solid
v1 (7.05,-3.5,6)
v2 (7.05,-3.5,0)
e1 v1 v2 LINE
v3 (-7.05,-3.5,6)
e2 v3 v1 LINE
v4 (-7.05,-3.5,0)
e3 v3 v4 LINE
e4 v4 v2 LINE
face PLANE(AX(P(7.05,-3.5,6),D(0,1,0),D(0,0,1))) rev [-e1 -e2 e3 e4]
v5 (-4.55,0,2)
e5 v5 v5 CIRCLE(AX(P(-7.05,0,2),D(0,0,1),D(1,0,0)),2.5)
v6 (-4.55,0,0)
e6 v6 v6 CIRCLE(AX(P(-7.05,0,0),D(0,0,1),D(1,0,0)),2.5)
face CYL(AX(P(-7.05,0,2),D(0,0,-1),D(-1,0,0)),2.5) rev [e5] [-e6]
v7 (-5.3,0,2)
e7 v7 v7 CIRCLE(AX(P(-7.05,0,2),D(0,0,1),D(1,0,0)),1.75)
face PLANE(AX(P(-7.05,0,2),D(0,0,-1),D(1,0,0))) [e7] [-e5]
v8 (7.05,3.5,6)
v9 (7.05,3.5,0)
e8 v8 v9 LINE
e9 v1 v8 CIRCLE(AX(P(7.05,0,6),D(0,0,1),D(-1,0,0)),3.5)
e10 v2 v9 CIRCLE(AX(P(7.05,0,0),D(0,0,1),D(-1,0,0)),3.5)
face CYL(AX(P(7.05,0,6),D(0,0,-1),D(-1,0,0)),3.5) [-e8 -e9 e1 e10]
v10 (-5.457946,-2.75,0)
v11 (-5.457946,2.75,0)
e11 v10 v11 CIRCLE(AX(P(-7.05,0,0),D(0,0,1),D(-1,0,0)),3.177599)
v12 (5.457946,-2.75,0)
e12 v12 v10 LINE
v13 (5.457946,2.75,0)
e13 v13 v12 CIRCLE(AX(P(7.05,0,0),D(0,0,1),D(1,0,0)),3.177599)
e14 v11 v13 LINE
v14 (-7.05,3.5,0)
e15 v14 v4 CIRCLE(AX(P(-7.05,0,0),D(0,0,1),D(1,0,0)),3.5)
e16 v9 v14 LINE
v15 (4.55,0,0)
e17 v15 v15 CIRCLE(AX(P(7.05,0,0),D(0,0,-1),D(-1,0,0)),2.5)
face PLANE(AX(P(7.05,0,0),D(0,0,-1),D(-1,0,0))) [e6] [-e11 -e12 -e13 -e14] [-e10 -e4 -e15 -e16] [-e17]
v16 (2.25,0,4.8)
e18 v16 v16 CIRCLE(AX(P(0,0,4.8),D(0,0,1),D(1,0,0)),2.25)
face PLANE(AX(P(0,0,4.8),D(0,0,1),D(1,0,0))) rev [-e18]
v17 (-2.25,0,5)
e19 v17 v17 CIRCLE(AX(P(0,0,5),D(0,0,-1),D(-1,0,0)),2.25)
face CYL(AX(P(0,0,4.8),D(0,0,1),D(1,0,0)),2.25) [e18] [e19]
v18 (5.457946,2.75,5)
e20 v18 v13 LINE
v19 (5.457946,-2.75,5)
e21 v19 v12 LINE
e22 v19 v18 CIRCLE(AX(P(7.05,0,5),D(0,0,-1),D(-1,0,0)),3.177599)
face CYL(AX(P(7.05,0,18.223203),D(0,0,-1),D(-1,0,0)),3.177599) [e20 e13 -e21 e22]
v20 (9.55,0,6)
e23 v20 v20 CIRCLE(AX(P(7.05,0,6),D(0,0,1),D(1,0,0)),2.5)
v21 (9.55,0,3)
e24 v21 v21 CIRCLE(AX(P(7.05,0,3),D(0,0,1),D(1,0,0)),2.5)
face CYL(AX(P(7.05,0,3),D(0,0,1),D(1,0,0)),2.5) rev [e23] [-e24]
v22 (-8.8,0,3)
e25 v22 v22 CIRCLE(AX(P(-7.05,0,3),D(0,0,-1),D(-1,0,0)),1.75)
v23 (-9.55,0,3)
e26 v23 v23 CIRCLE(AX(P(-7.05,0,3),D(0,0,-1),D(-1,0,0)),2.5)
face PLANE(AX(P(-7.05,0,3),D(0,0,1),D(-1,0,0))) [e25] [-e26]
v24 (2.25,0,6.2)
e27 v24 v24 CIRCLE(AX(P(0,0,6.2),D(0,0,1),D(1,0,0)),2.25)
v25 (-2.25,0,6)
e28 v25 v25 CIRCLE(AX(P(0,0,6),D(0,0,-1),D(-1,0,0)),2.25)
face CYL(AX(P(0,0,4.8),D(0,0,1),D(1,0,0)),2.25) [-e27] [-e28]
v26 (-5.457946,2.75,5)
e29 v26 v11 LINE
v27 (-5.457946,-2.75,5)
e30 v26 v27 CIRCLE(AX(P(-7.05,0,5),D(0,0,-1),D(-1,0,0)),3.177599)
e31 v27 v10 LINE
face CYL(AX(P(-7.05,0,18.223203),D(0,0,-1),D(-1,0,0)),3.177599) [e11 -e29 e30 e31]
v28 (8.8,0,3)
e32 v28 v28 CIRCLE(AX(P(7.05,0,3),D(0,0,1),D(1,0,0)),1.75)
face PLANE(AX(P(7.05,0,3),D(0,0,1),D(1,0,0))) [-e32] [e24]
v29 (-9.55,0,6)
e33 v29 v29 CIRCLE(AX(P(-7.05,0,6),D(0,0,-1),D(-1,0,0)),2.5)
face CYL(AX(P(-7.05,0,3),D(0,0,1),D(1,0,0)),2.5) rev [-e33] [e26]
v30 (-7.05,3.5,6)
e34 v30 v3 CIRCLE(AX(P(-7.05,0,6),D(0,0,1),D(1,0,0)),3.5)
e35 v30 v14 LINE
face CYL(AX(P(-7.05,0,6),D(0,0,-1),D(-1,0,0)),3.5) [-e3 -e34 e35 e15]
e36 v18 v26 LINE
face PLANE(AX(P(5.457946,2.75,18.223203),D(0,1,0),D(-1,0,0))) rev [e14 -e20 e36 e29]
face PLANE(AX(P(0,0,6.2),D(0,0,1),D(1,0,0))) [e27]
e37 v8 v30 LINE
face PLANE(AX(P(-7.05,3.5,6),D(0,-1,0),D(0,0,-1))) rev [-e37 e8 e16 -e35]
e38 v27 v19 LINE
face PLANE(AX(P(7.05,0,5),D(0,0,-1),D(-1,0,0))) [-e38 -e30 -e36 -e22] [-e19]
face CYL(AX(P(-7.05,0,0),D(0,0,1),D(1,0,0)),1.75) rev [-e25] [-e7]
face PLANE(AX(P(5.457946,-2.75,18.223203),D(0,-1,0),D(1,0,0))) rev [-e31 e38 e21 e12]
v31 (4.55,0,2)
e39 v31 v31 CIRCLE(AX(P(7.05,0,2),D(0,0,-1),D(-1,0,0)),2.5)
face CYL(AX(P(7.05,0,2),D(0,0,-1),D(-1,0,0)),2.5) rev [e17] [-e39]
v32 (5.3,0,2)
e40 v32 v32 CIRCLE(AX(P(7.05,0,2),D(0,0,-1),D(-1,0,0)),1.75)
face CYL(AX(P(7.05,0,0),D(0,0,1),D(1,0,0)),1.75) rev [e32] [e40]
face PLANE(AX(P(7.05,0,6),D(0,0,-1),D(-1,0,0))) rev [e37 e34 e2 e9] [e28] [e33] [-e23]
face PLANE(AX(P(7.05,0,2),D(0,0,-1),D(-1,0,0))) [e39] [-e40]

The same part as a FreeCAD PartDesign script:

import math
import FreeCAD as App
import Part
import Sketcher
from FreeCAD import Vector
Q = App.Units.Quantity

doc = App.newDocument("Part")
body = doc.addObject("PartDesign::Body", "Body")

sketch1 = doc.addObject("Sketcher::SketchObject", "Sketch")
body.addObject(sketch1)
sketch1.AttachmentSupport = (doc.XY_Plane, [""])
sketch1.MapMode = "FlatFace"
sketch1.addGeometry([
    Part.LineSegment(Vector(-7, -3.5, 0), Vector(7, -3.5, 0)),
    Part.ArcOfCircle(Part.Circle(Vector(7, 0, 0), Vector(0, 0, 1), 3.5), math.radians(-90), math.radians(90)),
    Part.LineSegment(Vector(7, 3.5, 0), Vector(-7, 3.5, 0)),
    Part.ArcOfCircle(Part.Circle(Vector(-7, 0, 0), Vector(0, 0, 1), 3.5), math.radians(90), math.radians(270)),
], False)
sketch1.addConstraint([
    Sketcher.Constraint("Tangent", 0, 2, 1, 1),
    Sketcher.Constraint("Tangent", 1, 2, 2, 1),
    Sketcher.Constraint("Tangent", 2, 2, 3, 1),
    Sketcher.Constraint("Tangent", 3, 2, 0, 1),
    Sketcher.Constraint("Horizontal", 0),
    Sketcher.Constraint("Horizontal", 2),
    Sketcher.Constraint("Symmetric", 1, 3, 3, 3, -1, 1),
    Sketcher.Constraint("Radius", 1, Q("3.5 mm")),
    Sketcher.Constraint("DistanceX", 0, 1, 0, 2, Q("14.1 mm")),
])
pad1 = doc.addObject("PartDesign::Pad", "Pad")
body.addObject(pad1)
pad1.Profile = sketch1
pad1.Length = 6

sketch2 = doc.addObject("Sketcher::SketchObject", "Sketch001")
body.addObject(sketch2)
sketch2.AttachmentSupport = (doc.XY_Plane, [""])
sketch2.MapMode = "FlatFace"
sketch2.AttachmentOffset = App.Placement(Vector(0, 0, 6), App.Rotation())
sketch2.addGeometry(Part.Circle(Vector(7, 0, 0), Vector(0, 0, 1), 2.5), False)
sketch2.addConstraint([
    Sketcher.Constraint("PointOnObject", 0, 3, -1),
    Sketcher.Constraint("Diameter", 0, Q("5 mm")),
    Sketcher.Constraint("DistanceX", -1, 1, 0, 3, Q("7.05 mm")),
])
pocket1 = doc.addObject("PartDesign::Pocket", "Pocket")
body.addObject(pocket1)
pocket1.Profile = sketch2
pocket1.Length = 3

sketch3 = doc.addObject("Sketcher::SketchObject", "Sketch002")
body.addObject(sketch3)
sketch3.AttachmentSupport = (doc.XY_Plane, [""])
sketch3.MapMode = "FlatFace"
sketch3.AttachmentOffset = App.Placement(Vector(0, 0, 3), App.Rotation())
sketch3.addGeometry(Part.Circle(Vector(7, 0, 0), Vector(0, 0, 1), 1.8), False)
sketch3.addConstraint([
    Sketcher.Constraint("PointOnObject", 0, 3, -1),
    Sketcher.Constraint("Diameter", 0, Q("3.5 mm")),
    Sketcher.Constraint("DistanceX", -1, 1, 0, 3, Q("7.05 mm")),
])
pocket2 = doc.addObject("PartDesign::Pocket", "Pocket001")
body.addObject(pocket2)
pocket2.Profile = sketch3
pocket2.Type = "ThroughAll"

sketch4 = doc.addObject("Sketcher::SketchObject", "Sketch003")
body.addObject(sketch4)
sketch4.AttachmentSupport = (doc.XY_Plane, [""])
sketch4.MapMode = "FlatFace"
sketch4.AttachmentOffset = App.Placement(Vector(0, 0, 2), App.Rotation())
sketch4.addGeometry([
    Part.Circle(Vector(7, 0, 0), Vector(0, 0, 1), 2.5),
    Part.Circle(Vector(7, 0, 0), Vector(0, 0, 1), 1.8),
], False)
sketch4.addConstraint([
    Sketcher.Constraint("Coincident", 1, 3, 0, 3),
    Sketcher.Constraint("PointOnObject", 0, 3, -1),
    Sketcher.Constraint("Diameter", 0, Q("5 mm")),
    Sketcher.Constraint("Diameter", 1, Q("3.5 mm")),
    Sketcher.Constraint("DistanceX", -1, 1, 0, 3, Q("7.05 mm")),
])
pocket3 = doc.addObject("PartDesign::Pocket", "Pocket002")
body.addObject(pocket3)
pocket3.Profile = sketch4
pocket3.Length = 2
doc.recompute()

mirrored = doc.addObject("PartDesign::Mirrored", "Mirrored")
body.addObject(mirrored)
mirrored.Originals = [pocket1, pocket2, pocket3]
mirrored.MirrorPlane = (doc.YZ_Plane, [""])
body.Tip = mirrored

sketch5 = doc.addObject("Sketcher::SketchObject", "Sketch004")
body.addObject(sketch5)
sketch5.AttachmentSupport = (doc.XY_Plane, [""])
sketch5.MapMode = "FlatFace"
sketch5.addGeometry([
    Part.LineSegment(Vector(-5.5, 2.8, 0), Vector(5.5, 2.8, 0)),
    Part.ArcOfCircle(Part.Circle(Vector(7, 0, 0), Vector(0, 0, 1), 3.2), math.radians(120), math.radians(240)),
    Part.LineSegment(Vector(5.5, -2.8, 0), Vector(-5.5, -2.8, 0)),
    Part.ArcOfCircle(Part.Circle(Vector(-7, 0, 0), Vector(0, 0, 1), 3.2), math.radians(-60), math.radians(60)),
], False)
sketch5.addConstraint([
    Sketcher.Constraint("Coincident", 0, 2, 1, 1),
    Sketcher.Constraint("Coincident", 1, 2, 2, 1),
    Sketcher.Constraint("Coincident", 2, 2, 3, 1),
    Sketcher.Constraint("Coincident", 3, 2, 0, 1),
    Sketcher.Constraint("Horizontal", 0),
    Sketcher.Constraint("Horizontal", 2),
    Sketcher.Constraint("Equal", 1, 3),
    Sketcher.Constraint("Symmetric", 1, 3, 3, 3, -1, 1),
    Sketcher.Constraint("Symmetric", 0, 2, 1, 2, -1),
    Sketcher.Constraint("Radius", 1, Q("3.177599 mm")),
    Sketcher.Constraint("DistanceX", 3, 3, 1, 3, Q("14.1 mm")),
    Sketcher.Constraint("DistanceY", 1, 2, 0, 2, Q("5.5 mm")),
])
pocket4 = doc.addObject("PartDesign::Pocket", "Pocket003")
body.addObject(pocket4)
pocket4.Profile = sketch5
pocket4.Length = 5
pocket4.Reversed = True

sketch6 = doc.addObject("Sketcher::SketchObject", "Sketch005")
body.addObject(sketch6)
sketch6.AttachmentSupport = (doc.XY_Plane, [""])
sketch6.MapMode = "FlatFace"
sketch6.AttachmentOffset = App.Placement(Vector(0, 0, 6), App.Rotation())
sketch6.addGeometry(Part.Circle(Vector(0, 0, 0), Vector(0, 0, 1), 2.2), False)
sketch6.addConstraint([
    Sketcher.Constraint("Coincident", 0, 3, -1, 1),
    Sketcher.Constraint("Diameter", 0, Q("4.5 mm")),
])
pad2 = doc.addObject("PartDesign::Pad", "Pad001")
body.addObject(pad2)
pad2.Profile = sketch6
pad2.Type = "TwoLengths"
pad2.Length = 0.2
pad2.Length2 = 1.2

doc.recompute()
